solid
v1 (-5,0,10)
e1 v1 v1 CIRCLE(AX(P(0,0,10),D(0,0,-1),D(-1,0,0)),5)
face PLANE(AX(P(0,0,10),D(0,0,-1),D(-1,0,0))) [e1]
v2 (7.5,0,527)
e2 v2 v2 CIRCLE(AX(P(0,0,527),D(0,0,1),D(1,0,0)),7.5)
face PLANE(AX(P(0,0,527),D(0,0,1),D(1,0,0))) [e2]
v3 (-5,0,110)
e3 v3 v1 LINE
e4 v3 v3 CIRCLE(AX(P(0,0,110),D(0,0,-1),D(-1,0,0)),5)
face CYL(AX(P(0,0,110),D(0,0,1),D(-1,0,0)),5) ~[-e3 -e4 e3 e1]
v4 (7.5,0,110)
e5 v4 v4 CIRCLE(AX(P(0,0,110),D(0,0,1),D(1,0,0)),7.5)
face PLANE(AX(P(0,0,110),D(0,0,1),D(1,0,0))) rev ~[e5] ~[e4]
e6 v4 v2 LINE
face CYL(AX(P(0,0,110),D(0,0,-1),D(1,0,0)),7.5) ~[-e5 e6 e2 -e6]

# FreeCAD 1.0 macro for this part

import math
import FreeCAD as App
import Part
import Sketcher
Q = App.Units.Quantity


def edges_at(feature, points):
    """Names of the edges that pass closest to the given points."""
    edges = feature.Shape.Edges
    near = lambda p: min(range(len(edges)), key=lambda i: edges[i].distToShape(Part.Vertex(*p))[0])
    return sorted({f"Edge{near(p) + 1}" for p in points})

doc = App.newDocument("Part")
params = doc.addObject("Spreadsheet::Sheet", "Params")
for row, (alias, value) in enumerate([
    ("sketch1_diameter", "50 mm"),
    ("pad1_length", "10 mm"),
    ("sketch2_diameter", "13 mm"),
    ("pad2_length", "100 mm"),
    ("fillet_radius", "1 mm"),
    ("sketch3_radius", "2 mm"),
    ("sketch3_radius2", "20 mm"),
    ("sketch3_radius3", "8.5 mm"),
    ("pocket1_length", "10 mm"),
    ("sketch4_diameter", "15 mm"),
    ("pad3_length", "417 mm"),
    ("sketch5_diameter", "13 mm"),
    ("pad4_length", "10 mm"),
    ("sketch6_diameter", "20 mm"),
    ("pad5_length", "2.5 mm"),
    ("sketch7_diameter", "20 mm"),
    ("pocket2_length", "12.5 mm"),
    ("sketch8_diameter", "50 mm"),
    ("pocket3_length", "110 mm"),
    ("sketch9_diameter", "10 mm"),
    ("pad6_length", "100 mm"),
], start=1):
    params.set(f"A{row}", alias)
    params.set(f"B{row}", "=" + value)
    params.setAlias(f"B{row}", alias)

body = doc.addObject("PartDesign::Body", "Body")

sketch1 = doc.addObject("Sketcher::SketchObject", "Sketch")
body.addObject(sketch1)
sketch1.AttachmentSupport = (doc.XY_Plane, [""])
sketch1.MapMode = "FlatFace"
sketch1.addGeometry(Part.Circle(App.Vector(0, 0, 0), App.Vector(0, 0, 1), 25), False)
sketch1.addConstraint([
    Sketcher.Constraint("Coincident", 0, 3, -1, 1),
    Sketcher.Constraint("Diameter", 0, Q("50 mm")),
])
sketch1.setExpression("Constraints[1]", "Params.sketch1_diameter")
pad1 = doc.addObject("PartDesign::Pad", "Pad")
body.addObject(pad1)
pad1.Profile = sketch1
pad1.setExpression("Length", "Params.pad1_length")

sketch2 = doc.addObject("Sketcher::SketchObject", "Sketch001")
body.addObject(sketch2)
sketch2.AttachmentSupport = (doc.XY_Plane, [""])
sketch2.MapMode = "FlatFace"
sketch2.AttachmentOffset = App.Placement(App.Vector(0, 0, 10), App.Rotation())
sketch2.addGeometry(Part.Circle(App.Vector(0, 0, 0), App.Vector(0, 0, 1), 6), False)
sketch2.addConstraint([
    Sketcher.Constraint("Coincident", 0, 3, -1, 1),
    Sketcher.Constraint("Diameter", 0, Q("13 mm")),
])
sketch2.setExpression("Constraints[1]", "Params.sketch2_diameter")
pad2 = doc.addObject("PartDesign::Pad", "Pad001")
body.addObject(pad2)
pad2.Profile = sketch2
pad2.setExpression("Length", "Params.pad2_length")
doc.recompute()

fillet = doc.addObject("PartDesign::Fillet", "Fillet")
body.addObject(fillet)
fillet.Base = (pad2, edges_at(pad2, [(-6.5, 0, 10)]))
fillet.setExpression("Radius", "Params.fillet_radius")

sketch3 = doc.addObject("Sketcher::SketchObject", "Sketch002")
body.addObject(sketch3)
sketch3.AttachmentSupport = (doc.XY_Plane, [""])
sketch3.MapMode = "FlatFace"
sketch3.addGeometry([
    Part.ArcOfCircle(Part.Circle(App.Vector(-17.4, 4.5, 0), App.Vector(0, 0, 1), 2), math.radians(166), math.radians(270)),
    Part.ArcOfCircle(Part.Circle(App.Vector(0, 0, 0), App.Vector(0, 0, 1), 20), math.radians(104), math.radians(166)),
    Part.ArcOfCircle(Part.Circle(App.Vector(-4.5, 17.4, 0), App.Vector(0, 0, 1), 2), math.radians(0), math.radians(104)),
    Part.LineSegment(App.Vector(-2.5, 17.4, 0), App.Vector(-2.5, 9.5, 0)),
    Part.ArcOfCircle(Part.Circle(App.Vector(-4.5, 9.5, 0), App.Vector(0, 0, 1), 2), math.radians(-65), math.radians(0)),
    Part.ArcOfCircle(Part.Circle(App.Vector(0, 0, 0), App.Vector(0, 0, 1), 8.5), math.radians(115), math.radians(155)),
    Part.ArcOfCircle(Part.Circle(App.Vector(-9.5, 4.5, 0), App.Vector(0, 0, 1), 2), math.radians(-90), math.radians(-25)),
    Part.LineSegment(App.Vector(-9.5, 2.5, 0), App.Vector(-17.4, 2.5, 0)),
], False)
sketch3.addConstraint([
    Sketcher.Constraint("Tangent", 0, 1, 1, 2),
    Sketcher.Constraint("Tangent", 1, 1, 2, 2),
    Sketcher.Constraint("Tangent", 2, 1, 3, 1),
    Sketcher.Constraint("Tangent", 3, 2, 4, 2),
    Sketcher.Constraint("Tangent", 4, 1, 5, 1),
    Sketcher.Constraint("Tangent", 5, 2, 6, 2),
    Sketcher.Constraint("Tangent", 6, 1, 7, 1),
    Sketcher.Constraint("Tangent", 7, 2, 0, 2),
    Sketcher.Constraint("Vertical", 3),
    Sketcher.Constraint("Horizontal", 7),
    Sketcher.Constraint("Coincident", 1, 3, -1, 1),
    Sketcher.Constraint("Coincident", 5, 3, -1, 1),
    Sketcher.Constraint("Equal", 0, 2),
    Sketcher.Constraint("Equal", 2, 4),
    Sketcher.Constraint("Equal", 4, 6),
    Sketcher.Constraint("Equal", 7, 3),
    Sketcher.Constraint("Radius", 0, Q("2 mm")),
    Sketcher.Constraint("Radius", 1, Q("20 mm")),
    Sketcher.Constraint("Radius", 5, Q("8.5 mm")),
    Sketcher.Constraint("DistanceY", -1, 1, 0, 1, Q("5 mm")),
])
sketch3.setExpression("Constraints[16]", "Params.sketch3_radius")
sketch3.setExpression("Constraints[17]", "Params.sketch3_radius2")
sketch3.setExpression("Constraints[18]", "Params.sketch3_radius3")
pocket1 = doc.addObject("PartDesign::Pocket", "Pocket")
body.addObject(pocket1)
pocket1.Profile = sketch3
pocket1.setExpression("Length", "Params.pocket1_length")
pocket1.Reversed = True
doc.recompute()

polarpattern = doc.addObject("PartDesign::PolarPattern", "PolarPattern")
body.addObject(polarpattern)
polarpattern.Originals = [pocket1]
polarpattern.Axis = (doc.Z_Axis, [""])
polarpattern.Angle = 360
polarpattern.Occurrences = 4
body.Tip = polarpattern

sketch4 = doc.addObject("Sketcher::SketchObject", "Sketch003")
body.addObject(sketch4)
sketch4.AttachmentSupport = (doc.XY_Plane, [""])
sketch4.MapMode = "FlatFace"
sketch4.AttachmentOffset = App.Placement(App.Vector(0, 0, 110), App.Rotation())
sketch4.addGeometry(Part.Circle(App.Vector(0, 0, 0), App.Vector(0, 0, 1), 8), False)
sketch4.addConstraint([
    Sketcher.Constraint("Coincident", 0, 3, -1, 1),
    Sketcher.Constraint("Diameter", 0, Q("15 mm")),
])
sketch4.setExpression("Constraints[1]", "Params.sketch4_diameter")
pad3 = doc.addObject("PartDesign::Pad", "Pad002")
body.addObject(pad3)
pad3.Profile = sketch4
pad3.setExpression("Length", "Params.pad3_length")

sketch5 = doc.addObject("Sketcher::SketchObject", "Sketch004")
body.addObject(sketch5)
sketch5.AttachmentSupport = (doc.XY_Plane, [""])
sketch5.MapMode = "FlatFace"
sketch5.AttachmentOffset = App.Placement(App.Vector(0, 0, 527), App.Rotation())
sketch5.addGeometry(Part.Circle(App.Vector(0, 0, 0), App.Vector(0, 0, 1), 6), False)
sketch5.addConstraint([
    Sketcher.Constraint("Coincident", 0, 3, -1, 1),
    Sketcher.Constraint("Diameter", 0, Q("13 mm")),
])
sketch5.setExpression("Constraints[1]", "Params.sketch5_diameter")
pad4 = doc.addObject("PartDesign::Pad", "Pad003")
body.addObject(pad4)
pad4.Profile = sketch5
pad4.setExpression("Length", "Params.pad4_length")

sketch6 = doc.addObject("Sketcher::SketchObject", "Sketch005")
body.addObject(sketch6)
sketch6.AttachmentSupport = (doc.XY_Plane, [""])
sketch6.MapMode = "FlatFace"
sketch6.AttachmentOffset = App.Placement(App.Vector(0, 0, 537), App.Rotation())
sketch6.addGeometry(Part.Circle(App.Vector(0, 0, 0), App.Vector(0, 0, 1), 10), False)
sketch6.addConstraint([
    Sketcher.Constraint("Coincident", 0, 3, -1, 1),
    Sketcher.Constraint("Diameter", 0, Q("20 mm")),
])
sketch6.setExpression("Constraints[1]", "Params.sketch6_diameter")
pad5 = doc.addObject("PartDesign::Pad", "Pad004")
body.addObject(pad5)
pad5.Profile = sketch6
pad5.setExpression("Length", "Params.pad5_length")

sketch7 = doc.addObject("Sketcher::SketchObject", "Sketch006")
body.addObject(sketch7)
sketch7.AttachmentSupport = (doc.XY_Plane, [""])
sketch7.MapMode = "FlatFace"
sketch7.AttachmentOffset = App.Placement(App.Vector(0, 0, 539.5), App.Rotation())
sketch7.addGeometry(Part.Circle(App.Vector(0, 0, 0), App.Vector(0, 0, 1), 10), False)
sketch7.addConstraint([
    Sketcher.Constraint("Coincident", 0, 3, -1, 1),
    Sketcher.Constraint("Diameter", 0, Q("20 mm")),
])
sketch7.setExpression("Constraints[1]", "Params.sketch7_diameter")
pocket2 = doc.addObject("PartDesign::Pocket", "Pocket001")
body.addObject(pocket2)
pocket2.Profile = sketch7
pocket2.setExpression("Length", "Params.pocket2_length")

sketch8 = doc.addObject("Sketcher::SketchObject", "Sketch007")
body.addObject(sketch8)
sketch8.AttachmentSupport = (doc.XY_Plane, [""])
sketch8.MapMode = "FlatFace"
sketch8.addGeometry(Part.Circle(App.Vector(0, 0, 0), App.Vector(0, 0, 1), 25), False)
sketch8.addConstraint([
    Sketcher.Constraint("Coincident", 0, 3, -1, 1),
    Sketcher.Constraint("Diameter", 0, Q("50 mm")),
])
sketch8.setExpression("Constraints[1]", "Params.sketch8_diameter")
pocket3 = doc.addObject("PartDesign::Pocket", "Pocket002")
body.addObject(pocket3)
pocket3.Profile = sketch8
pocket3.setExpression("Length", "Params.pocket3_length")
pocket3.Reversed = True

sketch9 = doc.addObject("Sketcher::SketchObject", "Sketch008")
body.addObject(sketch9)
sketch9.AttachmentSupport = (doc.XY_Plane, [""])
sketch9.MapMode = "FlatFace"
sketch9.AttachmentOffset = App.Placement(App.Vector(0, 0, 110), App.Rotation())
sketch9.addGeometry(Part.Circle(App.Vector(0, 0, 0), App.Vector(0, 0, 1), 5), False)
sketch9.addConstraint([
    Sketcher.Constraint("Coincident", 0, 3, -1, 1),
    Sketcher.Constraint("Diameter", 0, Q("10 mm")),
])
sketch9.setExpression("Constraints[1]", "Params.sketch9_diameter")
pad6 = doc.addObject("PartDesign::Pad", "Pad005")
body.addObject(pad6)
pad6.Profile = sketch9
pad6.setExpression("Length", "Params.pad6_length")
pad6.Reversed = True

doc.recompute()
